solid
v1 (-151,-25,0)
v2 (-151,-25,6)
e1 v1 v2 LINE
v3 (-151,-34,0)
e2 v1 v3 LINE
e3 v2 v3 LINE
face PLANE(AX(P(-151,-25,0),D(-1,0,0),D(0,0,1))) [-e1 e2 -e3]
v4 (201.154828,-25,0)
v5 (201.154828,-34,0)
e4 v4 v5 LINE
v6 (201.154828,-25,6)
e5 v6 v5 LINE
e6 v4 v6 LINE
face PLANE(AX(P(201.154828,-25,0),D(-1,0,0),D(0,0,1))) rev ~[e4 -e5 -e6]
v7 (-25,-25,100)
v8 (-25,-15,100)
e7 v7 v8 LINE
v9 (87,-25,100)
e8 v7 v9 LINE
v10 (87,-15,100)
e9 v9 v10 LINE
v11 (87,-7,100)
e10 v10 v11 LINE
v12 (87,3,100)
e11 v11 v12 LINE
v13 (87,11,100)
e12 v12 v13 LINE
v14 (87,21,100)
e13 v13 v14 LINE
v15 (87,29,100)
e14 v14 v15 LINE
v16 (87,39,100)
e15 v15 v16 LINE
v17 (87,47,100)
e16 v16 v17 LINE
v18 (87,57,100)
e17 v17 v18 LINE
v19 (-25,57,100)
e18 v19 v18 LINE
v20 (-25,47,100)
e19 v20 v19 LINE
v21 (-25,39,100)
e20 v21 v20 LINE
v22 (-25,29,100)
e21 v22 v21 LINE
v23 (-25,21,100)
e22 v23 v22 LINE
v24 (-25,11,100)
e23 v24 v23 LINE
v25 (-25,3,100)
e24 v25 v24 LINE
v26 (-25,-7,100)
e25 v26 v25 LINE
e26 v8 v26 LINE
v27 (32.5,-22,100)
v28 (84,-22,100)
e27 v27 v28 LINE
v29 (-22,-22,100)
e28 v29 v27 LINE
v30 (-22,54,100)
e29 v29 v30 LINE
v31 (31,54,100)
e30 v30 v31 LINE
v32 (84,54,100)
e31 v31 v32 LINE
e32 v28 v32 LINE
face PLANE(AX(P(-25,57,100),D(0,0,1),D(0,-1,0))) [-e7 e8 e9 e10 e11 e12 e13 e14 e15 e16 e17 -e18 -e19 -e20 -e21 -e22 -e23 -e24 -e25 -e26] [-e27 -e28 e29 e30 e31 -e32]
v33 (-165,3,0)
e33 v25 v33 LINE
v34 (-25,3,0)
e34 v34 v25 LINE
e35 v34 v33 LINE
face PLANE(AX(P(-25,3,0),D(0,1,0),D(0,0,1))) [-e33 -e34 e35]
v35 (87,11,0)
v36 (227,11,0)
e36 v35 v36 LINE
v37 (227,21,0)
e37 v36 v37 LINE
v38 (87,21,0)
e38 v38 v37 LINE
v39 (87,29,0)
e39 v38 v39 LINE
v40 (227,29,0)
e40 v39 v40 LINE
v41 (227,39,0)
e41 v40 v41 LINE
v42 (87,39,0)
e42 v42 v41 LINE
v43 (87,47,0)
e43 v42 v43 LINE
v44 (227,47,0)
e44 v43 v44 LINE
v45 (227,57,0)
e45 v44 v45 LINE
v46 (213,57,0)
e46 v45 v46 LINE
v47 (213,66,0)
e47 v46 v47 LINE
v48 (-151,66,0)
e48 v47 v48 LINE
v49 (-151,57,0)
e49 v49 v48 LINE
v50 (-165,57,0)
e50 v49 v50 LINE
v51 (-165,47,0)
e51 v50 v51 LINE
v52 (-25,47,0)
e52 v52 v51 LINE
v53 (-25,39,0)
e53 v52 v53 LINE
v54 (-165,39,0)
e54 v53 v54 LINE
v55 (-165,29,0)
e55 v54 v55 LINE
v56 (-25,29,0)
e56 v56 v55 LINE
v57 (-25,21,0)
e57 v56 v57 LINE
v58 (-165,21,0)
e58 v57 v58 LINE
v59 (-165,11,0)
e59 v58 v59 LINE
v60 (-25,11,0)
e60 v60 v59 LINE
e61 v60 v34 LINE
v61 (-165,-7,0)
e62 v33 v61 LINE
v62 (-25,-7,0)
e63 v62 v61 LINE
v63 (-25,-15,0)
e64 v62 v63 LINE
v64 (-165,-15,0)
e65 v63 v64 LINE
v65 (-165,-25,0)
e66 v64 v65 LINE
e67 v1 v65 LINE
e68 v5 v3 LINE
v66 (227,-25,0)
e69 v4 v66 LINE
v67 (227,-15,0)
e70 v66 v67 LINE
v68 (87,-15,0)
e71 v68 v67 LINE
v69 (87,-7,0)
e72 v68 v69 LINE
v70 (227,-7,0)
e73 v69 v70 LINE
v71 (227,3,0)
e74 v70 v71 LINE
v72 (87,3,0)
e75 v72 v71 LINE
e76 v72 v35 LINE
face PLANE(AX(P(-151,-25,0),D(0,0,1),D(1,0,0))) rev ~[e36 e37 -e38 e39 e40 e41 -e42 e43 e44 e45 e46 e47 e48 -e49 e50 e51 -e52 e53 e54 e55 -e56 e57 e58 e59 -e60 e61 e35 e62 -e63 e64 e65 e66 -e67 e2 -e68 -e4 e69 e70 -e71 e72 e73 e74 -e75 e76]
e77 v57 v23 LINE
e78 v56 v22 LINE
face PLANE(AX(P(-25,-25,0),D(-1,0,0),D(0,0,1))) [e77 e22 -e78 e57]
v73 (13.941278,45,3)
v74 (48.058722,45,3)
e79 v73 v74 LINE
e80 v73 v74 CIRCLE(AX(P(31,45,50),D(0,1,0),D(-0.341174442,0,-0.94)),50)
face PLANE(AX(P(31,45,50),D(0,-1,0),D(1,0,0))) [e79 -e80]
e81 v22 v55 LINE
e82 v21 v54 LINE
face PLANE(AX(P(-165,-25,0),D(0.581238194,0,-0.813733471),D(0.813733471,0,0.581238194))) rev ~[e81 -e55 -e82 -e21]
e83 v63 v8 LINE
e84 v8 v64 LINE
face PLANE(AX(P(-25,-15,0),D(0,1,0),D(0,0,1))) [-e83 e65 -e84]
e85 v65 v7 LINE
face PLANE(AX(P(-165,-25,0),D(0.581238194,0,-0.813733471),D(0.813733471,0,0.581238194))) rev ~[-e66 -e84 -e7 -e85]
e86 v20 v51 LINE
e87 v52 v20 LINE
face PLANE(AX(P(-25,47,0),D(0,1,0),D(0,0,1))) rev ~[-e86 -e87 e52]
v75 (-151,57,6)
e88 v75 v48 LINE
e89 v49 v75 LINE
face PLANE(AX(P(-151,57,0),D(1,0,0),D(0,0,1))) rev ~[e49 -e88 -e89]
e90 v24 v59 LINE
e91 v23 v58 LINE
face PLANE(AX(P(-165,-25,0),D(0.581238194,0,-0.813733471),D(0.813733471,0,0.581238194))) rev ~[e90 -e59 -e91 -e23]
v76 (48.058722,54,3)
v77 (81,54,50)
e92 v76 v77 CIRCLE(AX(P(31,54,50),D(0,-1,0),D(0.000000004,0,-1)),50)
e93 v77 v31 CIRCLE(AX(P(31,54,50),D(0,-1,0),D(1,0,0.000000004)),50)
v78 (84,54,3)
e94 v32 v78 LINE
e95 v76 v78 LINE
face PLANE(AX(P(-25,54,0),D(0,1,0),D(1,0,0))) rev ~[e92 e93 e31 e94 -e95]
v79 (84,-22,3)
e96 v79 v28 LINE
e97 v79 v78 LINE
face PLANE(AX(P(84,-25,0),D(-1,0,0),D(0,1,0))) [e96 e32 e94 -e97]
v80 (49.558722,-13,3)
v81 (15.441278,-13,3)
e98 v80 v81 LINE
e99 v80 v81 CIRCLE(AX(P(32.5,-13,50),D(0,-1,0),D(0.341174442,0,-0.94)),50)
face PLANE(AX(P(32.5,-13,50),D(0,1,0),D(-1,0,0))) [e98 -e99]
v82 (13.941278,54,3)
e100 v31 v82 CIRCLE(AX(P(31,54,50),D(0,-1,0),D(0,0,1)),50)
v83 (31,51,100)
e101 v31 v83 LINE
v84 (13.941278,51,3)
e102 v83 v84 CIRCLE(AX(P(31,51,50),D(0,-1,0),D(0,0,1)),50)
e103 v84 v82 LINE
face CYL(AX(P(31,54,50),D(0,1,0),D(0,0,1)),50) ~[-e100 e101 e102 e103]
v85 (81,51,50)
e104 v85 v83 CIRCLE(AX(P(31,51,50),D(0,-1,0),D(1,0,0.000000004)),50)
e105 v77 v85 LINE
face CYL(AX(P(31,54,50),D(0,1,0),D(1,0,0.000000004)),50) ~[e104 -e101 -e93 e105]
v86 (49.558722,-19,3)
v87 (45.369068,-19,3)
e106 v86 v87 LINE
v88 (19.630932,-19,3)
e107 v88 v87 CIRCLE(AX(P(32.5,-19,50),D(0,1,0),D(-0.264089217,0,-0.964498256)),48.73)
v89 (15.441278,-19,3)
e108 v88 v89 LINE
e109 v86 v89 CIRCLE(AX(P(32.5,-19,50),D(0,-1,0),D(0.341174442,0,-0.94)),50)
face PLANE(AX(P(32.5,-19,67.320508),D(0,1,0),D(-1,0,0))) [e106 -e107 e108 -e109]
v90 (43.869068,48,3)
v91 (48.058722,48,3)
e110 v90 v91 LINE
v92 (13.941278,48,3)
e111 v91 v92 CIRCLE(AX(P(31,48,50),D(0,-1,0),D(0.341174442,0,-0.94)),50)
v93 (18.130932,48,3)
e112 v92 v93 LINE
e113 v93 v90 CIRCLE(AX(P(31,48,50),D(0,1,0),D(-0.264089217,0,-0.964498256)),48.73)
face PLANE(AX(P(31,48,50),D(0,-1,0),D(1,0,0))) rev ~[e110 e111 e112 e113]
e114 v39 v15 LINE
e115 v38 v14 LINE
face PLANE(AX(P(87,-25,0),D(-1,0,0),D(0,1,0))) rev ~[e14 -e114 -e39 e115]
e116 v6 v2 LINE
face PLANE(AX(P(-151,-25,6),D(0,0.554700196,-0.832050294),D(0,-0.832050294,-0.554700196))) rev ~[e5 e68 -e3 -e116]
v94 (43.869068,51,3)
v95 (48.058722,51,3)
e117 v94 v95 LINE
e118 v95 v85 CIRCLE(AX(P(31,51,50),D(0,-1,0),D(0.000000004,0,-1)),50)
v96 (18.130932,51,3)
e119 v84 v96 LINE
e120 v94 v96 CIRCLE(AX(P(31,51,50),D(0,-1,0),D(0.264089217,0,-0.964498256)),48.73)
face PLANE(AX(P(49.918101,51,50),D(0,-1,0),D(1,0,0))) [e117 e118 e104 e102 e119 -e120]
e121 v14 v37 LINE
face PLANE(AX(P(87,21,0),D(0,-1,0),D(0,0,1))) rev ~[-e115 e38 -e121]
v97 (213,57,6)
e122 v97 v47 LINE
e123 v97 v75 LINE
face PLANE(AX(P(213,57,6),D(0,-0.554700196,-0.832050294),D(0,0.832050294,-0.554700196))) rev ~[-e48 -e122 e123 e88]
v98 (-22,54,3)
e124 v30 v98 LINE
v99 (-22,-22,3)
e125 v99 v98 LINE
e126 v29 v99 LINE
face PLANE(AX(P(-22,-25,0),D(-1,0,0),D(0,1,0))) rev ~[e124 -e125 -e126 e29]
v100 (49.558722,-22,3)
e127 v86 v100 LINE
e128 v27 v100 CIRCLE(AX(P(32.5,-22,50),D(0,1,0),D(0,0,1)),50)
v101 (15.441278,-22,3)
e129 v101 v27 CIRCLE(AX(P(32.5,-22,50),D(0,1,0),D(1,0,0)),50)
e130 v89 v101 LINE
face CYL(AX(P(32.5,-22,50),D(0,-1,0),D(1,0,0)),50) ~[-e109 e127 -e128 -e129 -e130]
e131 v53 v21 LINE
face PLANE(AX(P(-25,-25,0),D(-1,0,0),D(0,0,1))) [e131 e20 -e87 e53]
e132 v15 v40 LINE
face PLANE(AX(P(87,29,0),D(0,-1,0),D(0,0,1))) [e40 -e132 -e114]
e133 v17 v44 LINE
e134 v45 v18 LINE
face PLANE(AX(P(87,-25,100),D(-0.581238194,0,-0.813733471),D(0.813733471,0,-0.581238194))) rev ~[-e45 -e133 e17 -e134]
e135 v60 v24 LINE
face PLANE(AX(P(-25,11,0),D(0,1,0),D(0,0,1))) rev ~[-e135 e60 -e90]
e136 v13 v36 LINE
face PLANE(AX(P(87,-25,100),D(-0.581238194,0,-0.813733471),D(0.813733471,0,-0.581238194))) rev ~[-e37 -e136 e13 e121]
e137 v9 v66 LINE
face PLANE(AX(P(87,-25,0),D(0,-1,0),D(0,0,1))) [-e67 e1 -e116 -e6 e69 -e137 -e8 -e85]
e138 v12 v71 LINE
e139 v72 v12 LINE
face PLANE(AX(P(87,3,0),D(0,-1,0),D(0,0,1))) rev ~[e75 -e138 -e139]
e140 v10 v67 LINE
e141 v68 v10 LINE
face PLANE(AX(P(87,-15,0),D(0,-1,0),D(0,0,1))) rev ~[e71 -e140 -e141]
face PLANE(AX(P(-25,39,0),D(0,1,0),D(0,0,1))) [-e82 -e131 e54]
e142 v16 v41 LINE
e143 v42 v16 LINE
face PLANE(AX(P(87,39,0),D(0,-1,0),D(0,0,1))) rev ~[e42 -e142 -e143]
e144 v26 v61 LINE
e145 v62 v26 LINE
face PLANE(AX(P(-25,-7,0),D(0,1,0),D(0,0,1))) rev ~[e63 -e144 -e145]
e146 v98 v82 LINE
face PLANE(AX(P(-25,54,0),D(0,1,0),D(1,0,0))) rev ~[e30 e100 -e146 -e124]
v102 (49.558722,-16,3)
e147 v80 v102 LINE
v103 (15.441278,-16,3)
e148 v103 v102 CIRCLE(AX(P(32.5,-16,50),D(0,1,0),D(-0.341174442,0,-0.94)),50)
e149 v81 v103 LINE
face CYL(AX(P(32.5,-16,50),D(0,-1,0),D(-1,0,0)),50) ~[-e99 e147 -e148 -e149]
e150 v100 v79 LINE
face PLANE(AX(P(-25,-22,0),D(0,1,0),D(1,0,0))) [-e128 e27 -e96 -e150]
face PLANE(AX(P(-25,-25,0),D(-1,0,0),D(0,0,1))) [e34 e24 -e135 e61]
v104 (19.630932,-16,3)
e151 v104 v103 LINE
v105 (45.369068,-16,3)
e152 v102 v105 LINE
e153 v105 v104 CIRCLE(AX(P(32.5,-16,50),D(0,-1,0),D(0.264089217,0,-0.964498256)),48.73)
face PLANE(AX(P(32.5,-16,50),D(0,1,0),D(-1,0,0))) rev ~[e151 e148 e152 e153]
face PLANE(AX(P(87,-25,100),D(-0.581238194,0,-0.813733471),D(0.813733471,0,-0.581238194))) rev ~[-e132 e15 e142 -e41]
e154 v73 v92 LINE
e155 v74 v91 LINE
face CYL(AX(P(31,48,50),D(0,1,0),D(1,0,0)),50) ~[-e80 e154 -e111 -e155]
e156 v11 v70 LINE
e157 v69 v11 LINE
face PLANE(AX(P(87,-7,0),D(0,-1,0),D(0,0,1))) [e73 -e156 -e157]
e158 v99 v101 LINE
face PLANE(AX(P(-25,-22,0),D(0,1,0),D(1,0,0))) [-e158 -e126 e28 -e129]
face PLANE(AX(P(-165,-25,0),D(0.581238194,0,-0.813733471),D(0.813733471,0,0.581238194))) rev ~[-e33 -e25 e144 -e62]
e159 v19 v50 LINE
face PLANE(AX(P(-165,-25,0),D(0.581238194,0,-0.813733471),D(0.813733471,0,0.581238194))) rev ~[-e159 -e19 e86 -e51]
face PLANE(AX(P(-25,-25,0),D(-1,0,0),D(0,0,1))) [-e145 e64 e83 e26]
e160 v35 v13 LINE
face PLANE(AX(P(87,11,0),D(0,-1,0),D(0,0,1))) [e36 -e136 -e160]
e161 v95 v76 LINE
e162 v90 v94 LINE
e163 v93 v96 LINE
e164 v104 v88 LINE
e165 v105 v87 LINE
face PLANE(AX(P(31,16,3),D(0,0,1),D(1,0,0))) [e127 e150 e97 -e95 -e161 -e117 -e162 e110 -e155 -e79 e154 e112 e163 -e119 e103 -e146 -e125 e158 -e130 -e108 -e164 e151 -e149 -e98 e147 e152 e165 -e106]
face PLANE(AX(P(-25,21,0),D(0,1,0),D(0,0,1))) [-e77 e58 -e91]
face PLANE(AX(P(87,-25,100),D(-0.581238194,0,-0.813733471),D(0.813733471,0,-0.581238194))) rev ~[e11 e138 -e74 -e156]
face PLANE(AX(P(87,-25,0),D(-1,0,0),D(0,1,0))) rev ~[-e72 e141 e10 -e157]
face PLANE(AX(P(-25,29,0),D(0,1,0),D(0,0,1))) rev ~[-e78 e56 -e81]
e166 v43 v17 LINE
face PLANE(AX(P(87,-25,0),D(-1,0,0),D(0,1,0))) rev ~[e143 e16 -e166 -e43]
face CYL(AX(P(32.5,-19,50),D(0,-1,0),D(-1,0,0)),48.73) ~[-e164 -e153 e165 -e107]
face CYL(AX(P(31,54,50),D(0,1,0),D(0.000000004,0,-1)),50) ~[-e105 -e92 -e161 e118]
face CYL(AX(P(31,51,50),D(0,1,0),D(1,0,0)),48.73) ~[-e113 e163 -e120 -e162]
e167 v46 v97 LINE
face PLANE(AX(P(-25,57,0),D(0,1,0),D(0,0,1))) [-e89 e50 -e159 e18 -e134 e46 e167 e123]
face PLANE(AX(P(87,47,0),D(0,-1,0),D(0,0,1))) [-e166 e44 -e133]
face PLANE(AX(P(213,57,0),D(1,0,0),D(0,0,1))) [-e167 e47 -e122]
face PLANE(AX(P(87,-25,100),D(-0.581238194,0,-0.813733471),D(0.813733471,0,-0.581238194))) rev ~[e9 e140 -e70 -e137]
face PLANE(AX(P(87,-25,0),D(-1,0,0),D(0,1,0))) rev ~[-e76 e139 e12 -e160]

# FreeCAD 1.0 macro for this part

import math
import FreeCAD as App
import Part
import Sketcher
from FreeCAD import Vector


def faces_at(feature, points):
    """Names of the faces that lie closest to the given points."""
    faces = feature.Shape.Faces
    near = lambda p: min(range(len(faces)), key=lambda i: faces[i].distToShape(Part.Vertex(*p))[0])
    return sorted({f"Face{near(p) + 1}" for p in points})

doc = App.newDocument("Part")
params = doc.addObject("Spreadsheet::Sheet", "Params")
for row, (alias, value) in enumerate([
    ("sketch1_width", "112 mm"),
    ("sketch1_height", "82 mm"),
    ("pad1_length", "100 mm"),
    ("thickness_wall", "3 mm"),
    ("sketch2_width", "10 mm"),
    ("sketch2_height", "100 mm"),
    ("pad2_length", "140 mm"),
    ("sketch3_width", "140 mm"),
    ("sketch3_height", "100 mm"),
    ("pocket1_length", "100 mm"),
    ("sketch4_height", "6 mm"),
    ("pad3_length", "9 mm"),
    ("sketch5_radius", "50 mm"),
    ("pad4_length", "3 mm"),
    ("sketch6_diameter", "97.46 mm"),
    ("pad5_length", "3 mm"),
    ("sketch7_diameter", "100 mm"),
    ("pad6_length", "3 mm"),
    ("sketch8_width", "10 mm"),
    ("sketch8_height", "100 mm"),
    ("pad7_length", "140 mm"),
    ("sketch9_width", "140 mm"),
    ("sketch9_height", "100 mm"),
    ("pocket2_length", "82 mm"),
    ("sketch10_diameter", "100 mm"),
    ("pad8_length", "3 mm"),
    ("sketch11_diameter", "97.46 mm"),
    ("pad9_length", "3 mm"),
    ("sketch12_diameter", "100 mm"),
    ("pad10_length", "3 mm"),
    ("sketch13_width", "126 mm"),
    ("sketch13_height", "6 mm"),
    ("pad11_length", "9 mm"),
    ("sketch14_width", "364 mm"),
    ("sketch14_height", "6 mm"),
    ("pad12_length", "9 mm"),
    ("sketch15_width", "9 mm"),
    ("sketch15_height", "6 mm"),
    ("pocket3_length", "372 mm"),
    ("sketch16_width", "9 mm"),
    ("sketch16_height", "6 mm"),
    ("pocket4_length", "356 mm"),
], start=1):
    params.set(f"A{row}", alias)
    params.set(f"B{row}", "=" + value)
    params.setAlias(f"B{row}", alias)

body = doc.addObject("PartDesign::Body", "Body")

# Sketch on XY plane
sketch1 = body.newObject("Sketcher::SketchObject", "Sketch")
sketch1.AttachmentSupport = (doc.getObject("XY_Plane"), [""])
sketch1.MapMode = "FlatFace"
sketch1.addGeometry([
    Part.LineSegment(Vector(-25, 57, 0), Vector(-25, -25, 0)),
    Part.LineSegment(Vector(-25, -25, 0), Vector(87, -25, 0)),
    Part.LineSegment(Vector(87, -25, 0), Vector(87, 57, 0)),
    Part.LineSegment(Vector(87, 57, 0), Vector(-25, 57, 0)),
], False)
sketch1.addConstraint([
    Sketcher.Constraint("Coincident", 0, 2, 1, 1),
    Sketcher.Constraint("Coincident", 1, 2, 2, 1),
    Sketcher.Constraint("Coincident", 2, 2, 3, 1),
    Sketcher.Constraint("Coincident", 3, 2, 0, 1),
    Sketcher.Constraint("Vertical", 0),
    Sketcher.Constraint("Horizontal", 1),
    Sketcher.Constraint("Vertical", 2),
    Sketcher.Constraint("Horizontal", 3),
    Sketcher.Constraint("DistanceX", 1, 1, 1, 2, 112.0),
    Sketcher.Constraint("DistanceY", 0, 2, 0, 1, 82.0),
    Sketcher.Constraint("DistanceX", 0, 2, -1, 1, 25.0),
    Sketcher.Constraint("DistanceY", 0, 2, -1, 1, 25.0),
])
sketch1.setExpression("Constraints[8]", "Params.sketch1_width")
sketch1.setExpression("Constraints[9]", "Params.sketch1_height")
pad1 = body.newObject("PartDesign::Pad", "Pad")
pad1.Profile = sketch1
pad1.setExpression("Length", "Params.pad1_length")
doc.recompute()

thickness = body.newObject("PartDesign::Thickness", "Thickness")
thickness.Base = (pad1, faces_at(pad1, [(31, 16, 100)]))
thickness.setExpression("Value", "Params.thickness_wall")
thickness.Reversed = True
thickness.Join = "Arc"

# Sketch on YZ plane
sketch2 = body.newObject("Sketcher::SketchObject", "Sketch001")
sketch2.AttachmentSupport = (doc.getObject("YZ_Plane"), [""])
sketch2.MapMode = "FlatFace"
sketch2.AttachmentOffset = App.Placement(Vector(0, 0, 87), App.Rotation())
sketch2.addGeometry([
    Part.LineSegment(Vector(-25, 100, 0), Vector(-25, 0, 0)),  # 0
    Part.LineSegment(Vector(-25, 0, 0), Vector(-15, 0, 0)),  # 1
    Part.LineSegment(Vector(-15, 0, 0), Vector(-15, 100, 0)),  # 2
    Part.LineSegment(Vector(-15, 100, 0), Vector(-25, 100, 0)),  # 3
    Part.LineSegment(Vector(47, 100, 0), Vector(47, 0, 0)),  # 4
    Part.LineSegment(Vector(47, 0, 0), Vector(57, 0, 0)),  # 5
    Part.LineSegment(Vector(57, 0, 0), Vector(57, 100, 0)),  # 6
    Part.LineSegment(Vector(57, 100, 0), Vector(47, 100, 0)),  # 7
    Part.LineSegment(Vector(29, 100, 0), Vector(29, 0, 0)),  # 8
    Part.LineSegment(Vector(29, 0, 0), Vector(39, 0, 0)),  # 9
    Part.LineSegment(Vector(39, 0, 0), Vector(39, 100, 0)),  # 10
    Part.LineSegment(Vector(39, 100, 0), Vector(29, 100, 0)),  # 11
    Part.LineSegment(Vector(11, 100, 0), Vector(11, 0, 0)),  # 12
    Part.LineSegment(Vector(11, 0, 0), Vector(21, 0, 0)),  # 13
    Part.LineSegment(Vector(21, 0, 0), Vector(21, 100, 0)),  # 14
    Part.LineSegment(Vector(21, 100, 0), Vector(11, 100, 0)),  # 15
    Part.LineSegment(Vector(-7, 100, 0), Vector(-7, 0, 0)),  # 16
    Part.LineSegment(Vector(-7, 0, 0), Vector(3, 0, 0)),  # 17
    Part.LineSegment(Vector(3, 0, 0), Vector(3, 100, 0)),  # 18
    Part.LineSegment(Vector(3, 100, 0), Vector(-7, 100, 0)),  # 19
], False)
sketch2.addConstraint([
    Sketcher.Constraint("Coincident", 0, 2, 1, 1),
    Sketcher.Constraint("Coincident", 1, 2, 2, 1),
    Sketcher.Constraint("Coincident", 2, 2, 3, 1),
    Sketcher.Constraint("Coincident", 3, 2, 0, 1),
    Sketcher.Constraint("Coincident", 4, 2, 5, 1),
    Sketcher.Constraint("Coincident", 5, 2, 6, 1),
    Sketcher.Constraint("Coincident", 6, 2, 7, 1),
    Sketcher.Constraint("Coincident", 7, 2, 4, 1),
    Sketcher.Constraint("Coincident", 8, 2, 9, 1),
    Sketcher.Constraint("Coincident", 9, 2, 10, 1),
    Sketcher.Constraint("Coincident", 10, 2, 11, 1),
    Sketcher.Constraint("Coincident", 11, 2, 8, 1),
    Sketcher.Constraint("Coincident", 12, 2, 13, 1),
    Sketcher.Constraint("Coincident", 13, 2, 14, 1),
    Sketcher.Constraint("Coincident", 14, 2, 15, 1),
    Sketcher.Constraint("Coincident", 15, 2, 12, 1),
    Sketcher.Constraint("Coincident", 16, 2, 17, 1),
    Sketcher.Constraint("Coincident", 17, 2, 18, 1),
    Sketcher.Constraint("Coincident", 18, 2, 19, 1),
    Sketcher.Constraint("Coincident", 19, 2, 16, 1),
    Sketcher.Constraint("Vertical", 0),
    Sketcher.Constraint("Horizontal", 1),
    Sketcher.Constraint("Vertical", 2),
    Sketcher.Constraint("Horizontal", 3),
    Sketcher.Constraint("Vertical", 4),
    Sketcher.Constraint("Horizontal", 5),
    Sketcher.Constraint("Vertical", 6),
    Sketcher.Constraint("Horizontal", 7),
    Sketcher.Constraint("Vertical", 8),
    Sketcher.Constraint("Horizontal", 9),
    Sketcher.Constraint("Vertical", 10),
    Sketcher.Constraint("Horizontal", 11),
    Sketcher.Constraint("Vertical", 12),
    Sketcher.Constraint("Horizontal", 13),
    Sketcher.Constraint("Vertical", 14),
    Sketcher.Constraint("Horizontal", 15),
    Sketcher.Constraint("Vertical", 16),
    Sketcher.Constraint("Horizontal", 17),
    Sketcher.Constraint("Vertical", 18),
    Sketcher.Constraint("Horizontal", 19),
    Sketcher.Constraint("PointOnObject", 0, 2, -1),
    Sketcher.Constraint("PointOnObject", 4, 2, -1),
    Sketcher.Constraint("PointOnObject", 8, 2, -1),
    Sketcher.Constraint("PointOnObject", 12, 2, -1),
    Sketcher.Constraint("PointOnObject", 16, 2, -1),
    Sketcher.Constraint("Horizontal", 3, 2, 6, 2),
    Sketcher.Constraint("Horizontal", 7, 2, 10, 2),
    Sketcher.Constraint("Horizontal", 11, 2, 14, 2),
    Sketcher.Constraint("Horizontal", 15, 2, 18, 2),
    Sketcher.Constraint("Equal", 3, 5),
    Sketcher.Constraint("Equal", 7, 9),
    Sketcher.Constraint("Equal", 11, 13),
    Sketcher.Constraint("Equal", 15, 17),
    Sketcher.Constraint("DistanceX", 1, 1, 1, 2, 10.0),
    Sketcher.Constraint("DistanceY", 0, 2, 0, 1, 100.0),
    Sketcher.Constraint("DistanceX", 0, 2, -1, 1, 25.0),
    Sketcher.Constraint("DistanceX", -1, 1, 4, 2, 47.0),
    Sketcher.Constraint("DistanceX", -1, 1, 8, 2, 29.0),
    Sketcher.Constraint("DistanceX", -1, 1, 12, 2, 11.0),
    Sketcher.Constraint("DistanceX", 16, 2, -1, 1, 7.0),
])
sketch2.setExpression("Constraints[53]", "Params.sketch2_width")
sketch2.setExpression("Constraints[54]", "Params.sketch2_height")
pad2 = body.newObject("PartDesign::Pad", "Pad001")
pad2.Profile = sketch2
pad2.setExpression("Length", "Params.pad2_length")

# Sketch on XZ plane
sketch3 = body.newObject("Sketcher::SketchObject", "Sketch002")
sketch3.AttachmentSupport = (doc.getObject("XZ_Plane"), [""])
sketch3.MapMode = "FlatFace"
sketch3.AttachmentOffset = App.Placement(Vector(0, 0, 25), App.Rotation())
sketch3.addGeometry([
    Part.LineSegment(Vector(227, 0, 0), Vector(227, 100, 0)),
    Part.LineSegment(Vector(227, 100, 0), Vector(87, 100, 0)),
    Part.LineSegment(Vector(87, 100, 0), Vector(227, 0, 0)),
], False)
sketch3.addConstraint([
    Sketcher.Constraint("Coincident", 0, 2, 1, 1),
    Sketcher.Constraint("Coincident", 1, 2, 2, 1),
    Sketcher.Constraint("Coincident", 2, 2, 0, 1),
    Sketcher.Constraint("Vertical", 0),
    Sketcher.Constraint("Horizontal", 1),
    Sketcher.Constraint("PointOnObject", 2, 2, -1),
    Sketcher.Constraint("DistanceX", 1, 2, 1, 1, 140.0),
    Sketcher.Constraint("DistanceY", 0, 1, 0, 2, 100.0),
    Sketcher.Constraint("DistanceX", -1, 1, 0, 2, 227.0),
])
sketch3.setExpression("Constraints[6]", "Params.sketch3_width")
sketch3.setExpression("Constraints[7]", "Params.sketch3_height")
pocket1 = body.newObject("PartDesign::Pocket", "Pocket")
pocket1.Profile = sketch3
pocket1.setExpression("Length", "Params.pocket1_length")

# Sketch on XZ plane
sketch4 = body.newObject("Sketcher::SketchObject", "Sketch003")
sketch4.AttachmentSupport = (doc.getObject("XZ_Plane"), [""])
sketch4.MapMode = "FlatFace"
sketch4.AttachmentOffset = App.Placement(Vector(0, 0, 25), App.Rotation())
sketch4.addGeometry([
    Part.LineSegment(Vector(-25, 6, 0), Vector(-25, 0, 0)),
    Part.LineSegment(Vector(-25, 0, 0), Vector(201, 0, 0)),
    Part.LineSegment(Vector(201, 0, 0), Vector(201, 6, 0)),
    Part.LineSegment(Vector(201, 6, 0), Vector(-25, 6, 0)),
], False)
sketch4.addConstraint([
    Sketcher.Constraint("Coincident", 0, 2, 1, 1),
    Sketcher.Constraint("Coincident", 1, 2, 2, 1),
    Sketcher.Constraint("Coincident", 2, 2, 3, 1),
    Sketcher.Constraint("Coincident", 3, 2, 0, 1),
    Sketcher.Constraint("Vertical", 0),
    Sketcher.Constraint("Horizontal", 1),
    Sketcher.Constraint("Vertical", 2),
    Sketcher.Constraint("Horizontal", 3),
    Sketcher.Constraint("PointOnObject", 0, 2, -1),
    Sketcher.Constraint("DistanceY", 0, 2, 0, 1, 6.0),
    Sketcher.Constraint("DistanceX", 0, 2, -1, 1, 25.0),
    Sketcher.Constraint("DistanceX", 1, 1, 1, 2, 226.154828),
])
sketch4.setExpression("Constraints[9]", "Params.sketch4_height")
pad3 = body.newObject("PartDesign::Pad", "Pad002")
pad3.Profile = sketch4
pad3.setExpression("Length", "Params.pad3_length")

# Sketch on XZ plane
sketch5 = body.newObject("Sketcher::SketchObject", "Sketch004")
sketch5.AttachmentSupport = (doc.getObject("XZ_Plane"), [""])
sketch5.MapMode = "FlatFace"
sketch5.AttachmentOffset = App.Placement(Vector(0, 0, -54), App.Rotation())
sketch5.addGeometry([
    Part.ArcOfCircle(Part.Circle(Vector(31, 50, 0), Vector(0, 0, 1), 50), math.radians(0), math.radians(90)),
    Part.ArcOfCircle(Part.Circle(Vector(31, 50, 0), Vector(0, 0, 1), 50), math.radians(90), math.radians(270)),
    Part.ArcOfCircle(Part.Circle(Vector(31, 50, 0), Vector(0, 0, 1), 50), math.radians(-90), math.radians(0)),
], False)
sketch5.addConstraint([
    Sketcher.Constraint("Tangent", 0, 2, 1, 1),
    Sketcher.Constraint("Tangent", 1, 2, 2, 1),
    Sketcher.Constraint("Tangent", 2, 2, 0, 1),
    Sketcher.Constraint("PointOnObject", 1, 2, -1),
    Sketcher.Constraint("Horizontal", 1, 3, 2, 2),
    Sketcher.Constraint("Vertical", 2, 3, 0, 2),
    Sketcher.Constraint("Vertical", 0, 2, 1, 2),
    Sketcher.Constraint("Radius", 0, 50.0),
    Sketcher.Constraint("DistanceX", -1, 1, 0, 3, 31.0),
])
sketch5.setExpression("Constraints[7]", "Params.sketch5_radius")
pad4 = body.newObject("PartDesign::Pad", "Pad003")
pad4.Profile = sketch5
pad4.setExpression("Length", "Params.pad4_length")

# Sketch on XZ plane
sketch6 = body.newObject("Sketcher::SketchObject", "Sketch005")
sketch6.AttachmentSupport = (doc.getObject("XZ_Plane"), [""])
sketch6.MapMode = "FlatFace"
sketch6.AttachmentOffset = App.Placement(Vector(0, 0, -51), App.Rotation())
sketch6.addGeometry(Part.Circle(Vector(31, 50, 0), Vector(0, 0, 1), 49), False)
sketch6.addConstraint([
    Sketcher.Constraint("Diameter", 0, 97.46),
    Sketcher.Constraint("DistanceX", -1, 1, 0, 3, 31.0),
    Sketcher.Constraint("DistanceY", -1, 1, 0, 3, 50.0),
])
sketch6.setExpression("Constraints[0]", "Params.sketch6_diameter")
pad5 = body.newObject("PartDesign::Pad", "Pad004")
pad5.Profile = sketch6
pad5.setExpression("Length", "Params.pad5_length")

# Sketch on XZ plane
sketch7 = body.newObject("Sketcher::SketchObject", "Sketch006")
sketch7.AttachmentSupport = (doc.getObject("XZ_Plane"), [""])
sketch7.MapMode = "FlatFace"
sketch7.AttachmentOffset = App.Placement(Vector(0, 0, -48), App.Rotation())
sketch7.addGeometry(Part.Circle(Vector(31, 50, 0), Vector(0, 0, 1), 50), False)
sketch7.addConstraint([
    Sketcher.Constraint("Diameter", 0, 100.0),
    Sketcher.Constraint("DistanceX", -1, 1, 0, 3, 31.0),
    Sketcher.Constraint("DistanceY", -1, 1, 0, 3, 50.0),
])
sketch7.setExpression("Constraints[0]", "Params.sketch7_diameter")
pad6 = body.newObject("PartDesign::Pad", "Pad005")
pad6.Profile = sketch7
pad6.setExpression("Length", "Params.pad6_length")

# Sketch on YZ plane
sketch8 = body.newObject("Sketcher::SketchObject", "Sketch007")
sketch8.AttachmentSupport = (doc.getObject("YZ_Plane"), [""])
sketch8.MapMode = "FlatFace"
sketch8.AttachmentOffset = App.Placement(Vector(0, 0, -25), App.Rotation())
sketch8.addGeometry([
    Part.LineSegment(Vector(57, 100, 0), Vector(57, 0, 0)),  # 0
    Part.LineSegment(Vector(57, 0, 0), Vector(47, 0, 0)),  # 1
    Part.LineSegment(Vector(47, 0, 0), Vector(47, 100, 0)),  # 2
    Part.LineSegment(Vector(47, 100, 0), Vector(57, 100, 0)),  # 3
    Part.LineSegment(Vector(39, 100, 0), Vector(39, 0, 0)),  # 4
    Part.LineSegment(Vector(39, 0, 0), Vector(29, 0, 0)),  # 5
    Part.LineSegment(Vector(29, 0, 0), Vector(29, 100, 0)),  # 6
    Part.LineSegment(Vector(29, 100, 0), Vector(39, 100, 0)),  # 7
    Part.LineSegment(Vector(21, 100, 0), Vector(21, 0, 0)),  # 8
    Part.LineSegment(Vector(21, 0, 0), Vector(11, 0, 0)),  # 9
    Part.LineSegment(Vector(11, 0, 0), Vector(11, 100, 0)),  # 10
    Part.LineSegment(Vector(11, 100, 0), Vector(21, 100, 0)),  # 11
    Part.LineSegment(Vector(3, 100, 0), Vector(3, 0, 0)),  # 12
    Part.LineSegment(Vector(3, 0, 0), Vector(-7, 0, 0)),  # 13
    Part.LineSegment(Vector(-7, 0, 0), Vector(-7, 100, 0)),  # 14
    Part.LineSegment(Vector(-7, 100, 0), Vector(3, 100, 0)),  # 15
    Part.LineSegment(Vector(-15, 100, 0), Vector(-15, 0, 0)),  # 16
    Part.LineSegment(Vector(-15, 0, 0), Vector(-25, 0, 0)),  # 17
    Part.LineSegment(Vector(-25, 0, 0), Vector(-25, 100, 0)),  # 18
    Part.LineSegment(Vector(-25, 100, 0), Vector(-15, 100, 0)),  # 19
], False)
sketch8.addConstraint([
    Sketcher.Constraint("Coincident", 0, 2, 1, 1),
    Sketcher.Constraint("Coincident", 1, 2, 2, 1),
    Sketcher.Constraint("Coincident", 2, 2, 3, 1),
    Sketcher.Constraint("Coincident", 3, 2, 0, 1),
    Sketcher.Constraint("Coincident", 4, 2, 5, 1),
    Sketcher.Constraint("Coincident", 5, 2, 6, 1),
    Sketcher.Constraint("Coincident", 6, 2, 7, 1),
    Sketcher.Constraint("Coincident", 7, 2, 4, 1),
    Sketcher.Constraint("Coincident", 8, 2, 9, 1),
    Sketcher.Constraint("Coincident", 9, 2, 10, 1),
    Sketcher.Constraint("Coincident", 10, 2, 11, 1),
    Sketcher.Constraint("Coincident", 11, 2, 8, 1),
    Sketcher.Constraint("Coincident", 12, 2, 13, 1),
    Sketcher.Constraint("Coincident", 13, 2, 14, 1),
    Sketcher.Constraint("Coincident", 14, 2, 15, 1),
    Sketcher.Constraint("Coincident", 15, 2, 12, 1),
    Sketcher.Constraint("Coincident", 16, 2, 17, 1),
    Sketcher.Constraint("Coincident", 17, 2, 18, 1),
    Sketcher.Constraint("Coincident", 18, 2, 19, 1),
    Sketcher.Constraint("Coincident", 19, 2, 16, 1),
    Sketcher.Constraint("Vertical", 0),
    Sketcher.Constraint("Horizontal", 1),
    Sketcher.Constraint("Vertical", 2),
    Sketcher.Constraint("Horizontal", 3),
    Sketcher.Constraint("Vertical", 4),
    Sketcher.Constraint("Horizontal", 5),
    Sketcher.Constraint("Vertical", 6),
    Sketcher.Constraint("Horizontal", 7),
    Sketcher.Constraint("Vertical", 8),
    Sketcher.Constraint("Horizontal", 9),
    Sketcher.Constraint("Vertical", 10),
    Sketcher.Constraint("Horizontal", 11),
    Sketcher.Constraint("Vertical", 12),
    Sketcher.Constraint("Horizontal", 13),
    Sketcher.Constraint("Vertical", 14),
    Sketcher.Constraint("Horizontal", 15),
    Sketcher.Constraint("Vertical", 16),
    Sketcher.Constraint("Horizontal", 17),
    Sketcher.Constraint("Vertical", 18),
    Sketcher.Constraint("Horizontal", 19),
    Sketcher.Constraint("PointOnObject", 0, 2, -1),
    Sketcher.Constraint("PointOnObject", 4, 2, -1),
    Sketcher.Constraint("PointOnObject", 8, 2, -1),
    Sketcher.Constraint("PointOnObject", 12, 2, -1),
    Sketcher.Constraint("PointOnObject", 16, 2, -1),
    Sketcher.Constraint("Horizontal", 3, 2, 6, 2),
    Sketcher.Constraint("Horizontal", 7, 2, 10, 2),
    Sketcher.Constraint("Horizontal", 11, 2, 14, 2),
    Sketcher.Constraint("Horizontal", 15, 2, 18, 2),
    Sketcher.Constraint("Equal", 3, 5),
    Sketcher.Constraint("Equal", 7, 9),
    Sketcher.Constraint("Equal", 11, 13),
    Sketcher.Constraint("Equal", 15, 17),
    Sketcher.Constraint("DistanceX", 1, 2, 1, 1, 10.0),
    Sketcher.Constraint("DistanceY", 0, 2, 0, 1, 100.0),
    Sketcher.Constraint("DistanceX", -1, 1, 0, 2, 57.0),
    Sketcher.Constraint("DistanceX", -1, 1, 4, 2, 39.0),
    Sketcher.Constraint("DistanceX", -1, 1, 8, 2, 21.0),
    Sketcher.Constraint("DistanceX", -1, 1, 12, 2, 3.0),
    Sketcher.Constraint("DistanceX", 16, 2, -1, 1, 15.0),
])
sketch8.setExpression("Constraints[53]", "Params.sketch8_width")
sketch8.setExpression("Constraints[54]", "Params.sketch8_height")
pad7 = body.newObject("PartDesign::Pad", "Pad006")
pad7.Profile = sketch8
pad7.setExpression("Length", "Params.pad7_length")
pad7.Reversed = True

# Sketch on XZ plane
sketch9 = body.newObject("Sketcher::SketchObject", "Sketch008")
sketch9.AttachmentSupport = (doc.getObject("XZ_Plane"), [""])
sketch9.MapMode = "FlatFace"
sketch9.AttachmentOffset = App.Placement(Vector(0, 0, 25), App.Rotation())
sketch9.addGeometry([
    Part.LineSegment(Vector(-165, 100, 0), Vector(-165, 0, 0)),
    Part.LineSegment(Vector(-165, 0, 0), Vector(-25, 100, 0)),
    Part.LineSegment(Vector(-25, 100, 0), Vector(-165, 100, 0)),
], False)
sketch9.addConstraint([
    Sketcher.Constraint("Coincident", 0, 2, 1, 1),
    Sketcher.Constraint("Coincident", 1, 2, 2, 1),
    Sketcher.Constraint("Coincident", 2, 2, 0, 1),
    Sketcher.Constraint("Vertical", 0),
    Sketcher.Constraint("Horizontal", 2),
    Sketcher.Constraint("PointOnObject", 0, 2, -1),
    Sketcher.Constraint("DistanceX", 2, 2, 2, 1, 140.0),
    Sketcher.Constraint("DistanceY", 0, 2, 0, 1, 100.0),
    Sketcher.Constraint("DistanceX", 0, 2, -1, 1, 165.0),
])
sketch9.setExpression("Constraints[6]", "Params.sketch9_width")
sketch9.setExpression("Constraints[7]", "Params.sketch9_height")
pocket2 = body.newObject("PartDesign::Pocket", "Pocket001")
pocket2.Profile = sketch9
pocket2.setExpression("Length", "Params.pocket2_length")

# Sketch on XZ plane
sketch10 = body.newObject("Sketcher::SketchObject", "Sketch009")
sketch10.AttachmentSupport = (doc.getObject("XZ_Plane"), [""])
sketch10.MapMode = "FlatFace"
sketch10.AttachmentOffset = App.Placement(Vector(0, 0, 22), App.Rotation())
sketch10.addGeometry(Part.Circle(Vector(32, 50, 0), Vector(0, 0, 1), 50), False)
sketch10.addConstraint([
    Sketcher.Constraint("Diameter", 0, 100.0),
    Sketcher.Constraint("DistanceY", -1, 1, 0, 3, 50.0),
    Sketcher.Constraint("DistanceX", -1, 1, 0, 3, 32.5),
])
sketch10.setExpression("Constraints[0]", "Params.sketch10_diameter")
pad8 = body.newObject("PartDesign::Pad", "Pad007")
pad8.Profile = sketch10
pad8.setExpression("Length", "Params.pad8_length")
pad8.Reversed = True

# Sketch on XZ plane
sketch11 = body.newObject("Sketcher::SketchObject", "Sketch010")
sketch11.AttachmentSupport = (doc.getObject("XZ_Plane"), [""])
sketch11.MapMode = "FlatFace"
sketch11.AttachmentOffset = App.Placement(Vector(0, 0, 19), App.Rotation())
sketch11.addGeometry(Part.Circle(Vector(32, 50, 0), Vector(0, 0, 1), 49), False)
sketch11.addConstraint([
    Sketcher.Constraint("Diameter", 0, 97.46),
    Sketcher.Constraint("DistanceY", -1, 1, 0, 3, 50.0),
    Sketcher.Constraint("DistanceX", -1, 1, 0, 3, 32.5),
])
sketch11.setExpression("Constraints[0]", "Params.sketch11_diameter")
pad9 = body.newObject("PartDesign::Pad", "Pad008")
pad9.Profile = sketch11
pad9.setExpression("Length", "Params.pad9_length")
pad9.Reversed = True

# Sketch on XZ plane
sketch12 = body.newObject("Sketcher::SketchObject", "Sketch011")
sketch12.AttachmentSupport = (doc.getObject("XZ_Plane"), [""])
sketch12.MapMode = "FlatFace"
sketch12.AttachmentOffset = App.Placement(Vector(0, 0, 16), App.Rotation())
sketch12.addGeometry(Part.Circle(Vector(32, 50, 0), Vector(0, 0, 1), 50), False)
sketch12.addConstraint([
    Sketcher.Constraint("Diameter", 0, 100.0),
    Sketcher.Constraint("DistanceY", -1, 1, 0, 3, 50.0),
    Sketcher.Constraint("DistanceX", -1, 1, 0, 3, 32.5),
])
sketch12.setExpression("Constraints[0]", "Params.sketch12_diameter")
pad10 = body.newObject("PartDesign::Pad", "Pad009")
pad10.Profile = sketch12
pad10.setExpression("Length", "Params.pad10_length")
pad10.Reversed = True

# Sketch on XZ plane
sketch13 = body.newObject("Sketcher::SketchObject", "Sketch012")
sketch13.AttachmentSupport = (doc.getObject("XZ_Plane"), [""])
sketch13.MapMode = "FlatFace"
sketch13.AttachmentOffset = App.Placement(Vector(0, 0, 25), App.Rotation())
sketch13.addGeometry([
    Part.LineSegment(Vector(-151, 6, 0), Vector(-151, 0, 0)),
    Part.LineSegment(Vector(-151, 0, 0), Vector(-25, 0, 0)),
    Part.LineSegment(Vector(-25, 0, 0), Vector(-25, 6, 0)),
    Part.LineSegment(Vector(-25, 6, 0), Vector(-151, 6, 0)),
], False)
sketch13.addConstraint([
    Sketcher.Constraint("Coincident", 0, 2, 1, 1),
    Sketcher.Constraint("Coincident", 1, 2, 2, 1),
    Sketcher.Constraint("Coincident", 2, 2, 3, 1),
    Sketcher.Constraint("Coincident", 3, 2, 0, 1),
    Sketcher.Constraint("Vertical", 0),
    Sketcher.Constraint("Horizontal", 1),
    Sketcher.Constraint("Vertical", 2),
    Sketcher.Constraint("Horizontal", 3),
    Sketcher.Constraint("PointOnObject", 0, 2, -1),
    Sketcher.Constraint("DistanceX", 1, 1, 1, 2, 126.0),
    Sketcher.Constraint("DistanceY", 0, 2, 0, 1, 6.0),
    Sketcher.Constraint("DistanceX", 0, 2, -1, 1, 151.0),
])
sketch13.setExpression("Constraints[9]", "Params.sketch13_width")
sketch13.setExpression("Constraints[10]", "Params.sketch13_height")
pad11 = body.newObject("PartDesign::Pad", "Pad010")
pad11.Profile = sketch13
pad11.setExpression("Length", "Params.pad11_length")

# Sketch on XZ plane
sketch14 = body.newObject("Sketcher::SketchObject", "Sketch013")
sketch14.AttachmentSupport = (doc.getObject("XZ_Plane"), [""])
sketch14.MapMode = "FlatFace"
sketch14.AttachmentOffset = App.Placement(Vector(0, 0, -57), App.Rotation())
sketch14.addGeometry([
    Part.LineSegment(Vector(213, 6, 0), Vector(213, 0, 0)),
    Part.LineSegment(Vector(213, 0, 0), Vector(-151, 0, 0)),
    Part.LineSegment(Vector(-151, 0, 0), Vector(-151, 6, 0)),
    Part.LineSegment(Vector(-151, 6, 0), Vector(213, 6, 0)),
], False)
sketch14.addConstraint([
    Sketcher.Constraint("Coincident", 0, 2, 1, 1),
    Sketcher.Constraint("Coincident", 1, 2, 2, 1),
    Sketcher.Constraint("Coincident", 2, 2, 3, 1),
    Sketcher.Constraint("Coincident", 3, 2, 0, 1),
    Sketcher.Constraint("Vertical", 0),
    Sketcher.Constraint("Horizontal", 1),
    Sketcher.Constraint("Vertical", 2),
    Sketcher.Constraint("Horizontal", 3),
    Sketcher.Constraint("PointOnObject", 0, 2, -1),
    Sketcher.Constraint("DistanceX", 1, 2, 1, 1, 364.0),
    Sketcher.Constraint("DistanceY", 0, 2, 0, 1, 6.0),
    Sketcher.Constraint("DistanceX", -1, 1, 0, 2, 213.0),
])
sketch14.setExpression("Constraints[9]", "Params.sketch14_width")
sketch14.setExpression("Constraints[10]", "Params.sketch14_height")
pad12 = body.newObject("PartDesign::Pad", "Pad011")
pad12.Profile = sketch14
pad12.setExpression("Length", "Params.pad12_length")
pad12.Reversed = True

# Sketch on YZ plane
sketch15 = body.newObject("Sketcher::SketchObject", "Sketch014")
sketch15.AttachmentSupport = (doc.getObject("YZ_Plane"), [""])
sketch15.MapMode = "FlatFace"
sketch15.AttachmentOffset = App.Placement(Vector(0, 0, 213), App.Rotation())
sketch15.addGeometry([
    Part.LineSegment(Vector(66, 6, 0), Vector(57, 6, 0)),
    Part.LineSegment(Vector(57, 6, 0), Vector(66, 0, 0)),
    Part.LineSegment(Vector(66, 0, 0), Vector(66, 6, 0)),
], False)
sketch15.addConstraint([
    Sketcher.Constraint("Coincident", 0, 2, 1, 1),
    Sketcher.Constraint("Coincident", 1, 2, 2, 1),
    Sketcher.Constraint("Coincident", 2, 2, 0, 1),
    Sketcher.Constraint("Horizontal", 0),
    Sketcher.Constraint("Vertical", 2),
    Sketcher.Constraint("PointOnObject", 1, 2, -1),
    Sketcher.Constraint("DistanceX", 0, 2, 0, 1, 9.0),
    Sketcher.Constraint("DistanceY", 2, 1, 2, 2, 6.0),
    Sketcher.Constraint("DistanceX", -1, 1, 0, 2, 57.0),
])
sketch15.setExpression("Constraints[6]", "Params.sketch15_width")
sketch15.setExpression("Constraints[7]", "Params.sketch15_height")
pocket3 = body.newObject("PartDesign::Pocket", "Pocket002")
pocket3.Profile = sketch15
pocket3.setExpression("Length", "Params.pocket3_length")

# Sketch on YZ plane
sketch16 = body.newObject("Sketcher::SketchObject", "Sketch015")
sketch16.AttachmentSupport = (doc.getObject("YZ_Plane"), [""])
sketch16.MapMode = "FlatFace"
sketch16.AttachmentOffset = App.Placement(Vector(0, 0, -151), App.Rotation())
sketch16.addGeometry([
    Part.LineSegment(Vector(-34, 6, 0), Vector(-25, 6, 0)),
    Part.LineSegment(Vector(-25, 6, 0), Vector(-34, 0, 0)),
    Part.LineSegment(Vector(-34, 0, 0), Vector(-34, 6, 0)),
], False)
sketch16.addConstraint([
    Sketcher.Constraint("Coincident", 0, 2, 1, 1),
    Sketcher.Constraint("Coincident", 1, 2, 2, 1),
    Sketcher.Constraint("Coincident", 2, 2, 0, 1),
    Sketcher.Constraint("Horizontal", 0),
    Sketcher.Constraint("Vertical", 2),
    Sketcher.Constraint("PointOnObject", 1, 2, -1),
    Sketcher.Constraint("DistanceX", 0, 1, 0, 2, 9.0),
    Sketcher.Constraint("DistanceY", 2, 1, 2, 2, 6.0),
    Sketcher.Constraint("DistanceX", 0, 2, -1, 1, 25.0),
])
sketch16.setExpression("Constraints[6]", "Params.sketch16_width")
sketch16.setExpression("Constraints[7]", "Params.sketch16_height")
pocket4 = body.newObject("PartDesign::Pocket", "Pocket003")
pocket4.Profile = sketch16
pocket4.setExpression("Length", "Params.pocket4_length")
pocket4.Reversed = True

doc.recompute()
